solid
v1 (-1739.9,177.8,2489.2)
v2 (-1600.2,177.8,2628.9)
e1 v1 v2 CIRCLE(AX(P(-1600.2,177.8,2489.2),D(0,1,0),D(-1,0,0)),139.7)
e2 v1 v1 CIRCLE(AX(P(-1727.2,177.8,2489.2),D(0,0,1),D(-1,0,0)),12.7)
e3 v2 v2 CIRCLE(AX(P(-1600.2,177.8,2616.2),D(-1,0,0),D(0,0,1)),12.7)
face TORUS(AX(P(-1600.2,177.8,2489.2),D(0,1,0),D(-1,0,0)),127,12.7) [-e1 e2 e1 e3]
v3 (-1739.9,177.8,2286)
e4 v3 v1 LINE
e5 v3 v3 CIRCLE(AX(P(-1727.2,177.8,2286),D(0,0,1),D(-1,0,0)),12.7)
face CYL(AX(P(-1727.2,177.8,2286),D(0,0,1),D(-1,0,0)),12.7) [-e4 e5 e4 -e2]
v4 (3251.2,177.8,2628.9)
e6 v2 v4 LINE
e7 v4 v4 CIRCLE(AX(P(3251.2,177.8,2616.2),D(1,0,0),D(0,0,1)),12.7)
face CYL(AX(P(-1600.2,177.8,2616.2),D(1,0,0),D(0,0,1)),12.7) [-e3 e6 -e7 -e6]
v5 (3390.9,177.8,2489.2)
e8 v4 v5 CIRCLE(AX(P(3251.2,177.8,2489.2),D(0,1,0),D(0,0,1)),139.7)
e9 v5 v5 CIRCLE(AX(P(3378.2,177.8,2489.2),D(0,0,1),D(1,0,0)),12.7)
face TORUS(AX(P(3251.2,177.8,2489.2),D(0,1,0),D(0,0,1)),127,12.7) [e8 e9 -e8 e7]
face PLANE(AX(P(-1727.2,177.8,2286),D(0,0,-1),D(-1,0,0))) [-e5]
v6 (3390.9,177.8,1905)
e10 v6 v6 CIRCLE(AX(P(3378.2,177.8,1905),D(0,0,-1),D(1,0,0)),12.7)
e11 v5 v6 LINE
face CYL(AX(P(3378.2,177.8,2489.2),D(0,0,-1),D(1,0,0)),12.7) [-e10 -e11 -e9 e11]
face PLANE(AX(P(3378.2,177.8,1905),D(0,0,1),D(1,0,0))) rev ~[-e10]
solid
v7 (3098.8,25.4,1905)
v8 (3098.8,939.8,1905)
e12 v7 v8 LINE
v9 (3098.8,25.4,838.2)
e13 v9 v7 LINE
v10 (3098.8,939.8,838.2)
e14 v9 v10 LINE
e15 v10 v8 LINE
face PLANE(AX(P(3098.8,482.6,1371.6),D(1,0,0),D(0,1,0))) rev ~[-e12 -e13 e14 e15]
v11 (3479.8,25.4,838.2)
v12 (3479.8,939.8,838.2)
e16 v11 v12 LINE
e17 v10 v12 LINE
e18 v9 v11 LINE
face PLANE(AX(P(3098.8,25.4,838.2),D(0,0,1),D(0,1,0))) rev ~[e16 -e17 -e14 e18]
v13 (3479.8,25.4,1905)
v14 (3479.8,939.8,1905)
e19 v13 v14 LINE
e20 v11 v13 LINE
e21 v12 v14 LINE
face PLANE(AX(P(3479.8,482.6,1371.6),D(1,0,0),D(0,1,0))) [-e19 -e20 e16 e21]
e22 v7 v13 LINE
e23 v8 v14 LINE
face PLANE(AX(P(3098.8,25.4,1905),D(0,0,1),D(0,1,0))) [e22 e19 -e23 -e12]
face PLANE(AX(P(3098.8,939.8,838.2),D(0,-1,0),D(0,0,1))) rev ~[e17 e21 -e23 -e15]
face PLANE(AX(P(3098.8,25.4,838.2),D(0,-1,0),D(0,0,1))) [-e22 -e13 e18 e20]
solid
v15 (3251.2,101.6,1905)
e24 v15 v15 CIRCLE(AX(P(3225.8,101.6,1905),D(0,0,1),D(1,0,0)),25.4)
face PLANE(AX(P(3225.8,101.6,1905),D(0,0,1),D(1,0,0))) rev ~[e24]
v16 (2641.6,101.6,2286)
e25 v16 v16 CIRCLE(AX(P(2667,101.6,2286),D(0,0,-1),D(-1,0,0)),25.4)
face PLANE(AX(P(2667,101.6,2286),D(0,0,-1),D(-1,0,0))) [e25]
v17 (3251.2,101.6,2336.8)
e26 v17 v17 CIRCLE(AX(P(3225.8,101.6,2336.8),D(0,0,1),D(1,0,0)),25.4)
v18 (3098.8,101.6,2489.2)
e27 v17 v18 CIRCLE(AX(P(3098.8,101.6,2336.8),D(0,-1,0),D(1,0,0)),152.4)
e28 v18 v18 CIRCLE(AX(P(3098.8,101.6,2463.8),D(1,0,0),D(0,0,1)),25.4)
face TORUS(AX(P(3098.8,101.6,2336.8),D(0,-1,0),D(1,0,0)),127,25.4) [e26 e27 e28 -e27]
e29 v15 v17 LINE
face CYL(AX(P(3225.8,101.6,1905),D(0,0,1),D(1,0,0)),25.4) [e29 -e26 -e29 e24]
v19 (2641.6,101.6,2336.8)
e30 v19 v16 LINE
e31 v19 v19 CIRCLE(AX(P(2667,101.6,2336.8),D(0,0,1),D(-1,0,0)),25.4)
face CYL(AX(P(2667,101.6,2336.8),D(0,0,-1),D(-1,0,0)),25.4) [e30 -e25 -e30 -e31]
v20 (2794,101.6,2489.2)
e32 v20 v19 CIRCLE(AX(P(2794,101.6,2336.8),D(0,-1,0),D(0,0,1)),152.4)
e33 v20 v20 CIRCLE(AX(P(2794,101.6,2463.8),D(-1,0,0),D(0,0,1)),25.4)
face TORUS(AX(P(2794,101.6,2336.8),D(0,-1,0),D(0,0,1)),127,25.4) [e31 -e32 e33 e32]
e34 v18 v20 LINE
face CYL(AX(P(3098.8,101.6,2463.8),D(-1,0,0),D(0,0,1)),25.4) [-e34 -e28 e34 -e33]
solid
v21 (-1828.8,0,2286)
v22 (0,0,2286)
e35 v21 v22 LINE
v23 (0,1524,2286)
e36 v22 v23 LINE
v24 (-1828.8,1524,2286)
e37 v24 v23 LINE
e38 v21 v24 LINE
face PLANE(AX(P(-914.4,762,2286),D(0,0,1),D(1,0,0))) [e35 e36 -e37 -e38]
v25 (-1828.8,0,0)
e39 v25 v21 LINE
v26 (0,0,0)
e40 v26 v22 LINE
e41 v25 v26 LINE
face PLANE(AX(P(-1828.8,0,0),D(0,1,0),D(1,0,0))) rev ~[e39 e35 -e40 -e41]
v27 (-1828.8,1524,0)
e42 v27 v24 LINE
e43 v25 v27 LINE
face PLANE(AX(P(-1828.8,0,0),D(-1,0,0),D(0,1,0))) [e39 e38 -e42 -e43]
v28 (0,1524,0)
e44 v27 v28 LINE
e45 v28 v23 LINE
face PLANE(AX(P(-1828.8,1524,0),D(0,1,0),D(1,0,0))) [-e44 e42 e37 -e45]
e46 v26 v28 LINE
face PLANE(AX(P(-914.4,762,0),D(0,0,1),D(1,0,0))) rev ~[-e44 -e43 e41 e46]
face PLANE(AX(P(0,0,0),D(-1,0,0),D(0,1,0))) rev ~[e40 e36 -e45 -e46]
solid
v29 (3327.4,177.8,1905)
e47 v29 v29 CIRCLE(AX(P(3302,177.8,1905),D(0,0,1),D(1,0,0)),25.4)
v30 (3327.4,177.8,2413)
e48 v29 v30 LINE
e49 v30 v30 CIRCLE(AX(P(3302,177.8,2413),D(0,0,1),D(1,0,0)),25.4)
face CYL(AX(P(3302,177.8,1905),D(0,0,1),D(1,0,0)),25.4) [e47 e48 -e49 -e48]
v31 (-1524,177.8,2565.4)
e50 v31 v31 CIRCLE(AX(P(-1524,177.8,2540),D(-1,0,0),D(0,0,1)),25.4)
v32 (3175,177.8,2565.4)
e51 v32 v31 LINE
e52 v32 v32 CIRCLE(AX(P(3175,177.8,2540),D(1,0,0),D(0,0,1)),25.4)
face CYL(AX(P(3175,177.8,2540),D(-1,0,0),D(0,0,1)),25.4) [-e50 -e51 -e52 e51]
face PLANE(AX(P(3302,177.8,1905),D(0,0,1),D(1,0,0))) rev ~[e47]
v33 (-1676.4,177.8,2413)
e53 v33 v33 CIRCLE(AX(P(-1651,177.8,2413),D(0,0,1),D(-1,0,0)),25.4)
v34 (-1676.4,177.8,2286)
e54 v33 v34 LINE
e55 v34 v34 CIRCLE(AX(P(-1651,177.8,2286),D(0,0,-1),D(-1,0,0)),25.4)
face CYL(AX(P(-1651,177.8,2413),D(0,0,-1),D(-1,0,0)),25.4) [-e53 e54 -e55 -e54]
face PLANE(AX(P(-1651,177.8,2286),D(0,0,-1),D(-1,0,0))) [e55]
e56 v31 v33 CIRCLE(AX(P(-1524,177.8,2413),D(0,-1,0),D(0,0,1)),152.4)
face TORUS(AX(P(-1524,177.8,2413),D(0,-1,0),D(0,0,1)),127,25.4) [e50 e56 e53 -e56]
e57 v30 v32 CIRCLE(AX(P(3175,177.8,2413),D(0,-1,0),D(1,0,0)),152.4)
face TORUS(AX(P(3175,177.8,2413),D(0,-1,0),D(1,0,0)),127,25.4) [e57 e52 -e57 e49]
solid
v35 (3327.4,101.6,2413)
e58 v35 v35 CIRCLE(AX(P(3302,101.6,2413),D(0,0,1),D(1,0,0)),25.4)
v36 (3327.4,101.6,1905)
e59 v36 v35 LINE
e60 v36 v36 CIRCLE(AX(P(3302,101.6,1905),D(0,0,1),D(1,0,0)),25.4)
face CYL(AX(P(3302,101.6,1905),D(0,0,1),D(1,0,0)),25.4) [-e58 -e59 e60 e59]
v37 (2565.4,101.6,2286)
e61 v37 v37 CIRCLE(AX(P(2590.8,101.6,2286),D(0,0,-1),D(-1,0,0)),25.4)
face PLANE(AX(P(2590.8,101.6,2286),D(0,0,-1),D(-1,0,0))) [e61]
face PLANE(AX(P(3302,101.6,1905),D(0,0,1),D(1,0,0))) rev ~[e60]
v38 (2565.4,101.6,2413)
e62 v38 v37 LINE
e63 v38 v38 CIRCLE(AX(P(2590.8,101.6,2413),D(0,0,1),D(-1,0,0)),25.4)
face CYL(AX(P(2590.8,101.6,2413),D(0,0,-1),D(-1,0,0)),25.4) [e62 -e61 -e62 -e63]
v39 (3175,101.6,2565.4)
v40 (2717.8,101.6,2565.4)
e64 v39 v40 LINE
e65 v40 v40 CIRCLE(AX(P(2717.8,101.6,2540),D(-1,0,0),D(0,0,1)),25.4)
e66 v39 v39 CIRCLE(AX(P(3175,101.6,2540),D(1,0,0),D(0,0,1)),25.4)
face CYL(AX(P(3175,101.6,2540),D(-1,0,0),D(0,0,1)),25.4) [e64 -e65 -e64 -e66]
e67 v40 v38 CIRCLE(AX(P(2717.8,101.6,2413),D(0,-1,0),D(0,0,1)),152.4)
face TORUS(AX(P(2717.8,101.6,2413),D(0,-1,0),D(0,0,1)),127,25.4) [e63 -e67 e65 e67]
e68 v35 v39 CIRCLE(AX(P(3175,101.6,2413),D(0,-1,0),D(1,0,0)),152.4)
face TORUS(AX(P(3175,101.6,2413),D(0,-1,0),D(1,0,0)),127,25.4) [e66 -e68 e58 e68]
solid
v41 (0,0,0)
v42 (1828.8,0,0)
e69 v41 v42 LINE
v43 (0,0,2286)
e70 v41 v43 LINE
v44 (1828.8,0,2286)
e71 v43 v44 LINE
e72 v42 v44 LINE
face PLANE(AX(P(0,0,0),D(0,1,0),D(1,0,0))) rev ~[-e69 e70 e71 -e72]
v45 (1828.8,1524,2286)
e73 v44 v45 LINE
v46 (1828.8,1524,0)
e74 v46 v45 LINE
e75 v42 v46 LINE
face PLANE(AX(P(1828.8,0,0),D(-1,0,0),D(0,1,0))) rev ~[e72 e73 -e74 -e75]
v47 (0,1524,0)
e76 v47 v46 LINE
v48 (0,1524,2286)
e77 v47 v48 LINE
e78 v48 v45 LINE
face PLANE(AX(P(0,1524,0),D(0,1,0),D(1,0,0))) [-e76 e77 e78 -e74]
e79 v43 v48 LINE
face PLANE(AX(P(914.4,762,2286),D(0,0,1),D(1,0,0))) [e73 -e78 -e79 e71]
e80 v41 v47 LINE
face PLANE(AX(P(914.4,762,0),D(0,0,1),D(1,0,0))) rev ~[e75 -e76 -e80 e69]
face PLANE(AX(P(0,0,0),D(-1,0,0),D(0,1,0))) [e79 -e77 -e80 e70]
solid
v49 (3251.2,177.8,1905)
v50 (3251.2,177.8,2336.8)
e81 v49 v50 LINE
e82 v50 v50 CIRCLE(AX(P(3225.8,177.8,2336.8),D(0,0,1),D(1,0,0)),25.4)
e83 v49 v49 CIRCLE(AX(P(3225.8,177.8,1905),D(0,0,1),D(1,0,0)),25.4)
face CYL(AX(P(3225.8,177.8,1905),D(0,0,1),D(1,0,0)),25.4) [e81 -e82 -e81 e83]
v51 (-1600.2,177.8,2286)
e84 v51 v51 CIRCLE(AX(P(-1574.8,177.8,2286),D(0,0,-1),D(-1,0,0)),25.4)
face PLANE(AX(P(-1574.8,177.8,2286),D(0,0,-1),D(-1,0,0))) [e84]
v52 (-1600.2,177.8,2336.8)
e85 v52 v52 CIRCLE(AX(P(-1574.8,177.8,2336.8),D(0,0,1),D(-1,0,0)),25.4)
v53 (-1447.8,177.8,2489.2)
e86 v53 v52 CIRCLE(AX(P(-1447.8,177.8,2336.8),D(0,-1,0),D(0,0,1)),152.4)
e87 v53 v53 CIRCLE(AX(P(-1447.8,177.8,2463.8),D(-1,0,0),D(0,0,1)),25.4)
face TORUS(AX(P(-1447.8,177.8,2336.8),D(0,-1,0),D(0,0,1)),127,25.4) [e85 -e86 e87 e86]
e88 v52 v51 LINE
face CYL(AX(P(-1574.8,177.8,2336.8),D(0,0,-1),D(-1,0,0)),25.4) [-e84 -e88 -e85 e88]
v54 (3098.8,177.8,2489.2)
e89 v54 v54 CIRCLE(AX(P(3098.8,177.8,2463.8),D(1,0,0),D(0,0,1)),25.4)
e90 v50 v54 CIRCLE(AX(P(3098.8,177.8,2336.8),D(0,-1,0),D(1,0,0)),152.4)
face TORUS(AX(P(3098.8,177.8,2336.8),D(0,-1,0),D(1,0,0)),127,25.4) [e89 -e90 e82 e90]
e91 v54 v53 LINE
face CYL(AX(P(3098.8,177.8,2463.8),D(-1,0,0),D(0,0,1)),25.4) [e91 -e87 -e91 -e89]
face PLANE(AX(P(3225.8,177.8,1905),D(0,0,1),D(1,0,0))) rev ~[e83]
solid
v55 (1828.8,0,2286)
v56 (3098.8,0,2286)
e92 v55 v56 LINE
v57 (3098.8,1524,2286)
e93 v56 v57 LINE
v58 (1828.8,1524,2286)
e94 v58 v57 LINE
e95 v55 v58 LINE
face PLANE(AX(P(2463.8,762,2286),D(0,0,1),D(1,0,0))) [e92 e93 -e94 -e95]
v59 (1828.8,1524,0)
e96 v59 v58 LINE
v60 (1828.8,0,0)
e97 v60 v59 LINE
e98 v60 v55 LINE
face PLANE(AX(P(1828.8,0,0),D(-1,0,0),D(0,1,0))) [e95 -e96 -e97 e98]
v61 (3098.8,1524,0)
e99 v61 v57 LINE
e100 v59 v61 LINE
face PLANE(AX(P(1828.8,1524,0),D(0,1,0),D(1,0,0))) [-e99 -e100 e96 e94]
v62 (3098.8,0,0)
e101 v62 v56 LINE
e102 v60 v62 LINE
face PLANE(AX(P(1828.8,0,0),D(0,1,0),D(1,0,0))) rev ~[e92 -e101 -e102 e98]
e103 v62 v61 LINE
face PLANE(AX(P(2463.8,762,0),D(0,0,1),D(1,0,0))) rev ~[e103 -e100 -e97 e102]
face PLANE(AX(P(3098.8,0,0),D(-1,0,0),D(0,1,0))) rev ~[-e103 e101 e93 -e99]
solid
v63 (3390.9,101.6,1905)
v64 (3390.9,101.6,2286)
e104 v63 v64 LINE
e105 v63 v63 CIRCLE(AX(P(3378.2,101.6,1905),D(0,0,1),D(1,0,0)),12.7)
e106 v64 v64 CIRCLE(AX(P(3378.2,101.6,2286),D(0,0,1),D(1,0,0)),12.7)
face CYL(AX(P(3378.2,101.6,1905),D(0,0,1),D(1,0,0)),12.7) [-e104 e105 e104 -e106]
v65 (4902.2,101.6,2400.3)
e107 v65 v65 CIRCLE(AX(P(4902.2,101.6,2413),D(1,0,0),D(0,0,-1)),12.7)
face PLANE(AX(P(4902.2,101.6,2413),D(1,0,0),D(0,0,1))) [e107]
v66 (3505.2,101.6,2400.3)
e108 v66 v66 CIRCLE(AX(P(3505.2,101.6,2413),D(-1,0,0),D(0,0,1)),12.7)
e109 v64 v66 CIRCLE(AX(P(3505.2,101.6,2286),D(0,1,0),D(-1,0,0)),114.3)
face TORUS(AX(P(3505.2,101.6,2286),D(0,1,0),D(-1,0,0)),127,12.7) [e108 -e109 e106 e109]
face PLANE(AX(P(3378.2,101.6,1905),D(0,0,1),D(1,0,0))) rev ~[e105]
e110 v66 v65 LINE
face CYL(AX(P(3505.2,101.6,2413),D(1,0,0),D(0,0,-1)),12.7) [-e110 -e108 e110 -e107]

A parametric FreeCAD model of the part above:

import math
import FreeCAD as App
import Part
import Sketcher

V = App.Vector
Q = App.Units.Quantity

doc = App.newDocument("Part")
params = doc.addObject("Spreadsheet::Sheet", "Params")
for row, (alias, value) in enumerate([
    ("sketch1_width", "72 in"),
    ("sketch1_height", "60 in"),
    ("pad1_length", "90 in"),
    ("sketch2_width", "72 in"),
    ("sketch2_height", "60 in"),
    ("pad2_length", "90 in"),
    ("sketch3_width", "50 in"),
    ("sketch3_height", "60 in"),
    ("pad3_length", "90 in"),
    ("sketch4_width", "36 in"),
    ("sketch4_height", "42 in"),
    ("pad4_length", "15 in"),
    ("sketch5_diameter", "2 in"),
    ("sketch6_radius", "5 in"),
    ("sketch6_width", "18 in"),
    ("sketch6_height", "20 in"),
    ("sketch6_height2", "5 in"),
    ("sketch7_diameter", "2 in"),
    ("sketch8_radius", "5 in"),
    ("sketch8_width", "12 in"),
    ("sketch8_height", "17 in"),
    ("sketch8_height2", "2 in"),
    ("sketch9_diameter", "1 in"),
    ("sketch10_radius", "5 in"),
    ("sketch10_width", "55 in"),
    ("sketch10_height", "15 in"),
    ("sketch11_diameter", "2 in"),
    ("sketch12_radius", "5 in"),
    ("sketch12_width", "185 in"),
    ("sketch12_height", "20 in"),
    ("sketch12_height2", "5 in"),
    ("sketch13_diameter", "1 in"),
    ("sketch14_radius", "5 in"),
    ("sketch14_width", "191 in"),
    ("sketch14_height", "8 in"),
    ("sketch14_height2", "23 in"),
    ("sketch15_diameter", "2 in"),
    ("sketch16_radius", "5 in"),
    ("sketch16_width", "179 in"),
    ("sketch16_height", "17 in"),
    ("sketch16_height2", "2 in"),
], start=1):
    params.set(f"A{row}", alias)
    params.set(f"B{row}", "=" + value)
    params.setAlias(f"B{row}", alias)

body = doc.addObject("PartDesign::Body", "Body")

# Sketch on XY plane
sketch1 = body.newObject("Sketcher::SketchObject", "Sketch")
sketch1.AttachmentSupport = (doc.getObject("XY_Plane"), [""])
sketch1.MapMode = "FlatFace"
sketch1.addGeometry(Part.LineSegment(V(0, 1524, 0), V(0, 0, 0)), False)
sketch1.addGeometry(Part.LineSegment(V(0, 0, 0), V(1829, 0, 0)), False)
sketch1.addGeometry(Part.LineSegment(V(1829, 0, 0), V(1829, 1524, 0)), False)
sketch1.addGeometry(Part.LineSegment(V(1829, 1524, 0), V(0, 1524, 0)), False)
sketch1.addConstraint(Sketcher.Constraint("Coincident", 0, 2, 1, 1))
sketch1.addConstraint(Sketcher.Constraint("Coincident", 1, 2, 2, 1))
sketch1.addConstraint(Sketcher.Constraint("Coincident", 2, 2, 3, 1))
sketch1.addConstraint(Sketcher.Constraint("Coincident", 3, 2, 0, 1))
sketch1.addConstraint(Sketcher.Constraint("Vertical", 0))
sketch1.addConstraint(Sketcher.Constraint("Horizontal", 1))
sketch1.addConstraint(Sketcher.Constraint("Vertical", 2))
sketch1.addConstraint(Sketcher.Constraint("Horizontal", 3))
sketch1.addConstraint(Sketcher.Constraint("Coincident", 0, 2, -1, 1))
sketch1.addConstraint(Sketcher.Constraint("DistanceX", 1, 1, 1, 2, Q("72 in")))
sketch1.addConstraint(Sketcher.Constraint("DistanceY", 0, 2, 0, 1, Q("60 in")))
sketch1.setExpression("Constraints[9]", "Params.sketch1_width")
sketch1.setExpression("Constraints[10]", "Params.sketch1_height")
pad1 = body.newObject("PartDesign::Pad", "Pad")
pad1.Profile = sketch1
pad1.setExpression("Length", "Params.pad1_length")
body2 = doc.addObject("PartDesign::Body", "Body001")

# Sketch on XY plane
sketch2 = body2.newObject("Sketcher::SketchObject", "Sketch001")
sketch2.AttachmentSupport = (doc.getObject("XY_Plane001"), [""])
sketch2.MapMode = "FlatFace"
sketch2.addGeometry(Part.LineSegment(V(-1829, 1524, 0), V(-1829, 0, 0)), False)
sketch2.addGeometry(Part.LineSegment(V(-1829, 0, 0), V(0, 0, 0)), False)
sketch2.addGeometry(Part.LineSegment(V(0, 0, 0), V(0, 1524, 0)), False)
sketch2.addGeometry(Part.LineSegment(V(0, 1524, 0), V(-1829, 1524, 0)), False)
sketch2.addConstraint(Sketcher.Constraint("Coincident", 0, 2, 1, 1))
sketch2.addConstraint(Sketcher.Constraint("Coincident", 1, 2, 2, 1))
sketch2.addConstraint(Sketcher.Constraint("Coincident", 2, 2, 3, 1))
sketch2.addConstraint(Sketcher.Constraint("Coincident", 3, 2, 0, 1))
sketch2.addConstraint(Sketcher.Constraint("Vertical", 0))
sketch2.addConstraint(Sketcher.Constraint("Horizontal", 1))
sketch2.addConstraint(Sketcher.Constraint("Vertical", 2))
sketch2.addConstraint(Sketcher.Constraint("Horizontal", 3))
sketch2.addConstraint(Sketcher.Constraint("Coincident", 1, 2, -1, 1))
sketch2.addConstraint(Sketcher.Constraint("DistanceX", 1, 1, 1, 2, Q("72 in")))
sketch2.addConstraint(Sketcher.Constraint("DistanceY", 0, 2, 0, 1, Q("60 in")))
sketch2.setExpression("Constraints[9]", "Params.sketch2_width")
sketch2.setExpression("Constraints[10]", "Params.sketch2_height")
pad2 = body2.newObject("PartDesign::Pad", "Pad001")
pad2.Profile = sketch2
pad2.setExpression("Length", "Params.pad2_length")
body3 = doc.addObject("PartDesign::Body", "Body002")

# Sketch on XY plane
sketch3 = body3.newObject("Sketcher::SketchObject", "Sketch002")
sketch3.AttachmentSupport = (doc.getObject("XY_Plane002"), [""])
sketch3.MapMode = "FlatFace"
sketch3.addGeometry(Part.LineSegment(V(1829, 1524, 0), V(1829, 0, 0)), False)
sketch3.addGeometry(Part.LineSegment(V(1829, 0, 0), V(3099, 0, 0)), False)
sketch3.addGeometry(Part.LineSegment(V(3099, 0, 0), V(3099, 1524, 0)), False)
sketch3.addGeometry(Part.LineSegment(V(3099, 1524, 0), V(1829, 1524, 0)), False)
sketch3.addConstraint(Sketcher.Constraint("Coincident", 0, 2, 1, 1))
sketch3.addConstraint(Sketcher.Constraint("Coincident", 1, 2, 2, 1))
sketch3.addConstraint(Sketcher.Constraint("Coincident", 2, 2, 3, 1))
sketch3.addConstraint(Sketcher.Constraint("Coincident", 3, 2, 0, 1))
sketch3.addConstraint(Sketcher.Constraint("Vertical", 0))
sketch3.addConstraint(Sketcher.Constraint("Horizontal", 1))
sketch3.addConstraint(Sketcher.Constraint("Vertical", 2))
sketch3.addConstraint(Sketcher.Constraint("Horizontal", 3))
sketch3.addConstraint(Sketcher.Constraint("PointOnObject", 0, 2, -1))
sketch3.addConstraint(Sketcher.Constraint("DistanceX", 1, 1, 1, 2, Q("50 in")))
sketch3.addConstraint(Sketcher.Constraint("DistanceY", 0, 2, 0, 1, Q("60 in")))
sketch3.addConstraint(Sketcher.Constraint("DistanceX", -1, 1, 0, 2, Q("72 in")))
sketch3.setExpression("Constraints[9]", "Params.sketch3_width")
sketch3.setExpression("Constraints[10]", "Params.sketch3_height")
pad3 = body3.newObject("PartDesign::Pad", "Pad002")
pad3.Profile = sketch3
pad3.setExpression("Length", "Params.pad3_length")
body4 = doc.addObject("PartDesign::Body", "Body003")

# Sketch on YZ plane
sketch4 = body4.newObject("Sketcher::SketchObject", "Sketch003")
sketch4.AttachmentSupport = (doc.getObject("YZ_Plane003"), [""])
sketch4.MapMode = "FlatFace"
sketch4.AttachmentOffset = App.Placement(V(0, 0, 122 * 25.4), App.Rotation())
sketch4.addGeometry(Part.LineSegment(V(25, 1905, 0), V(25, 838, 0)), False)
sketch4.addGeometry(Part.LineSegment(V(25, 838, 0), V(940, 838, 0)), False)
sketch4.addGeometry(Part.LineSegment(V(940, 838, 0), V(940, 1905, 0)), False)
sketch4.addGeometry(Part.LineSegment(V(940, 1905, 0), V(25, 1905, 0)), False)
sketch4.addConstraint(Sketcher.Constraint("Coincident", 0, 2, 1, 1))
sketch4.addConstraint(Sketcher.Constraint("Coincident", 1, 2, 2, 1))
sketch4.addConstraint(Sketcher.Constraint("Coincident", 2, 2, 3, 1))
sketch4.addConstraint(Sketcher.Constraint("Coincident", 3, 2, 0, 1))
sketch4.addConstraint(Sketcher.Constraint("Vertical", 0))
sketch4.addConstraint(Sketcher.Constraint("Horizontal", 1))
sketch4.addConstraint(Sketcher.Constraint("Vertical", 2))
sketch4.addConstraint(Sketcher.Constraint("Horizontal", 3))
sketch4.addConstraint(Sketcher.Constraint("DistanceX", 1, 1, 1, 2, Q("36 in")))
sketch4.addConstraint(Sketcher.Constraint("DistanceY", 0, 2, 0, 1, Q("42 in")))
sketch4.addConstraint(Sketcher.Constraint("DistanceX", -1, 1, 0, 2, Q("1 in")))
sketch4.addConstraint(Sketcher.Constraint("DistanceY", -1, 1, 0, 2, Q("33 in")))
sketch4.setExpression("Constraints[8]", "Params.sketch4_width")
sketch4.setExpression("Constraints[9]", "Params.sketch4_height")
pad4 = body4.newObject("PartDesign::Pad", "Pad003")
pad4.Profile = sketch4
pad4.setExpression("Length", "Params.pad4_length")
body5 = doc.addObject("PartDesign::Body", "Body004")

# Sketch on XY plane
sketch5 = body5.newObject("Sketcher::SketchObject", "Sketch004")
sketch5.AttachmentSupport = (doc.getObject("XY_Plane004"), [""])
sketch5.MapMode = "FlatFace"
sketch5.AttachmentOffset = App.Placement(V(0, 0, 75 * 25.4), App.Rotation())
sketch5.addGeometry(Part.Circle(V(3302, 102, 0), V(0, 0, 1), 25), False)
sketch5.addConstraint(Sketcher.Constraint("Diameter", 0, Q("2 in")))
sketch5.addConstraint(Sketcher.Constraint("DistanceX", -1, 1, 0, 3, Q("130 in")))
sketch5.addConstraint(Sketcher.Constraint("DistanceY", -1, 1, 0, 3, Q("4 in")))
sketch5.setExpression("Constraints[0]", "Params.sketch5_diameter")

# Sketch on XZ plane
sketch6 = body5.newObject("Sketcher::SketchObject", "Sketch005")
sketch6.AttachmentSupport = (doc.getObject("XZ_Plane004"), [""])
sketch6.MapMode = "FlatFace"
sketch6.AttachmentOffset = App.Placement(V(0, 0, -4 * 25.4), App.Rotation())
sketch6.addGeometry(Part.LineSegment(V(3302, 1905, 0), V(3302, 2413, 0)), False)
sketch6.addGeometry(Part.ArcOfCircle(Part.Circle(V(3175, 2413, 0), V(0, 0, 1), 127), math.radians(0), math.radians(90)), False)
sketch6.addGeometry(Part.LineSegment(V(3175, 2540, 0), V(2718, 2540, 0)), False)
sketch6.addGeometry(Part.ArcOfCircle(Part.Circle(V(2718, 2413, 0), V(0, 0, 1), 127), math.radians(90), math.radians(180)), False)
sketch6.addGeometry(Part.LineSegment(V(2591, 2413, 0), V(2591, 2286, 0)), False)
sketch6.addConstraint(Sketcher.Constraint("Tangent", 0, 2, 1, 1))
sketch6.addConstraint(Sketcher.Constraint("Tangent", 1, 2, 2, 1))
sketch6.addConstraint(Sketcher.Constraint("Tangent", 2, 2, 3, 1))
sketch6.addConstraint(Sketcher.Constraint("Tangent", 3, 2, 4, 1))
sketch6.addConstraint(Sketcher.Constraint("Vertical", 0))
sketch6.addConstraint(Sketcher.Constraint("Horizontal", 2))
sketch6.addConstraint(Sketcher.Constraint("Vertical", 4))
sketch6.addConstraint(Sketcher.Constraint("Equal", 1, 3))
sketch6.addConstraint(Sketcher.Constraint("Radius", 1, Q("5 in")))
sketch6.addConstraint(Sketcher.Constraint("DistanceX", 2, 2, 2, 1, Q("18 in")))
sketch6.addConstraint(Sketcher.Constraint("DistanceY", 0, 1, 0, 2, Q("20 in")))
sketch6.addConstraint(Sketcher.Constraint("DistanceY", 4, 2, 4, 1, Q("5 in")))
sketch6.addConstraint(Sketcher.Constraint("DistanceX", -1, 1, 1, 3, Q("125 in")))
sketch6.addConstraint(Sketcher.Constraint("DistanceY", -1, 1, 1, 3, Q("95 in")))
sketch6.setExpression("Constraints[8]", "Params.sketch6_radius")
sketch6.setExpression("Constraints[9]", "Params.sketch6_width")
sketch6.setExpression("Constraints[10]", "Params.sketch6_height")
sketch6.setExpression("Constraints[11]", "Params.sketch6_height2")
doc.recompute()

additivepipe = body5.newObject("PartDesign::AdditivePipe", "AdditivePipe")
additivepipe.Profile = sketch5
additivepipe.Spine = (sketch6, ["Edge1", "Edge2", "Edge3", "Edge4", "Edge5"])
body6 = doc.addObject("PartDesign::Body", "Body005")

# Sketch on XY plane
sketch7 = body6.newObject("Sketcher::SketchObject", "Sketch006")
sketch7.AttachmentSupport = (doc.getObject("XY_Plane005"), [""])
sketch7.MapMode = "FlatFace"
sketch7.AttachmentOffset = App.Placement(V(0, 0, 75 * 25.4), App.Rotation())
sketch7.addGeometry(Part.Circle(V(3226, 102, 0), V(0, 0, 1), 25), False)
sketch7.addConstraint(Sketcher.Constraint("Diameter", 0, Q("2 in")))
sketch7.addConstraint(Sketcher.Constraint("DistanceX", -1, 1, 0, 3, Q("127 in")))
sketch7.addConstraint(Sketcher.Constraint("DistanceY", -1, 1, 0, 3, Q("4 in")))
sketch7.setExpression("Constraints[0]", "Params.sketch7_diameter")

# Sketch on XZ plane
sketch8 = body6.newObject("Sketcher::SketchObject", "Sketch007")
sketch8.AttachmentSupport = (doc.getObject("XZ_Plane005"), [""])
sketch8.MapMode = "FlatFace"
sketch8.AttachmentOffset = App.Placement(V(0, 0, -4 * 25.4), App.Rotation())
sketch8.addGeometry(Part.LineSegment(V(3226, 1905, 0), V(3226, 2337, 0)), False)
sketch8.addGeometry(Part.ArcOfCircle(Part.Circle(V(3099, 2337, 0), V(0, 0, 1), 127), math.radians(0), math.radians(90)), False)
sketch8.addGeometry(Part.LineSegment(V(3099, 2464, 0), V(2794, 2464, 0)), False)
sketch8.addGeometry(Part.ArcOfCircle(Part.Circle(V(2794, 2337, 0), V(0, 0, 1), 127), math.radians(90), math.radians(180)), False)
sketch8.addGeometry(Part.LineSegment(V(2667, 2337, 0), V(2667, 2286, 0)), False)
sketch8.addConstraint(Sketcher.Constraint("Tangent", 0, 2, 1, 1))
sketch8.addConstraint(Sketcher.Constraint("Tangent", 1, 2, 2, 1))
sketch8.addConstraint(Sketcher.Constraint("Tangent", 2, 2, 3, 1))
sketch8.addConstraint(Sketcher.Constraint("Tangent", 3, 2, 4, 1))
sketch8.addConstraint(Sketcher.Constraint("Vertical", 0))
sketch8.addConstraint(Sketcher.Constraint("Horizontal", 2))
sketch8.addConstraint(Sketcher.Constraint("Vertical", 4))
sketch8.addConstraint(Sketcher.Constraint("Equal", 1, 3))
sketch8.addConstraint(Sketcher.Constraint("Radius", 1, Q("5 in")))
sketch8.addConstraint(Sketcher.Constraint("DistanceX", 2, 2, 2, 1, Q("12 in")))
sketch8.addConstraint(Sketcher.Constraint("DistanceY", 0, 1, 0, 2, Q("17 in")))
sketch8.addConstraint(Sketcher.Constraint("DistanceY", 4, 2, 4, 1, Q("2 in")))
sketch8.addConstraint(Sketcher.Constraint("DistanceX", -1, 1, 1, 3, Q("122 in")))
sketch8.addConstraint(Sketcher.Constraint("DistanceY", -1, 1, 1, 3, Q("92 in")))
sketch8.setExpression("Constraints[8]", "Params.sketch8_radius")
sketch8.setExpression("Constraints[9]", "Params.sketch8_width")
sketch8.setExpression("Constraints[10]", "Params.sketch8_height")
sketch8.setExpression("Constraints[11]", "Params.sketch8_height2")
doc.recompute()

additivepipe2 = body6.newObject("PartDesign::AdditivePipe", "AdditivePipe001")
additivepipe2.Profile = sketch7
additivepipe2.Spine = (sketch8, ["Edge1", "Edge2", "Edge3", "Edge4", "Edge5"])
body7 = doc.addObject("PartDesign::Body", "Body006")

# Sketch on XY plane
sketch9 = body7.newObject("Sketcher::SketchObject", "Sketch008")
sketch9.AttachmentSupport = (doc.getObject("XY_Plane006"), [""])
sketch9.MapMode = "FlatFace"
sketch9.AttachmentOffset = App.Placement(V(0, 0, 75 * 25.4), App.Rotation())
sketch9.addGeometry(Part.Circle(V(3378, 102, 0), V(0, 0, 1), 13), False)
sketch9.addConstraint(Sketcher.Constraint("Diameter", 0, Q("1 in")))
sketch9.addConstraint(Sketcher.Constraint("DistanceX", -1, 1, 0, 3, Q("133 in")))
sketch9.addConstraint(Sketcher.Constraint("DistanceY", -1, 1, 0, 3, Q("4 in")))
sketch9.setExpression("Constraints[0]", "Params.sketch9_diameter")

# Sketch on XZ plane
sketch10 = body7.newObject("Sketcher::SketchObject", "Sketch009")
sketch10.AttachmentSupport = (doc.getObject("XZ_Plane006"), [""])
sketch10.MapMode = "FlatFace"
sketch10.AttachmentOffset = App.Placement(V(0, 0, -4 * 25.4), App.Rotation())
sketch10.addGeometry(Part.LineSegment(V(3378, 1905, 0), V(3378, 2286, 0)), False)
sketch10.addGeometry(Part.ArcOfCircle(Part.Circle(V(3505, 2286, 0), V(0, 0, 1), 127), math.radians(90), math.radians(180)), False)
sketch10.addGeometry(Part.LineSegment(V(3505, 2413, 0), V(4902, 2413, 0)), False)
sketch10.addConstraint(Sketcher.Constraint("Tangent", 0, 2, 1, 2))
sketch10.addConstraint(Sketcher.Constraint("Tangent", 1, 1, 2, 1))
sketch10.addConstraint(Sketcher.Constraint("Vertical", 0))
sketch10.addConstraint(Sketcher.Constraint("Horizontal", 2))
sketch10.addConstraint(Sketcher.Constraint("Radius", 1, Q("5 in")))
sketch10.addConstraint(Sketcher.Constraint("DistanceX", 2, 1, 2, 2, Q("55 in")))
sketch10.addConstraint(Sketcher.Constraint("DistanceY", 0, 1, 0, 2, Q("15 in")))
sketch10.addConstraint(Sketcher.Constraint("DistanceX", -1, 1, 1, 3, Q("138 in")))
sketch10.addConstraint(Sketcher.Constraint("DistanceY", -1, 1, 1, 3, Q("90 in")))
sketch10.setExpression("Constraints[4]", "Params.sketch10_radius")
sketch10.setExpression("Constraints[5]", "Params.sketch10_width")
sketch10.setExpression("Constraints[6]", "Params.sketch10_height")
doc.recompute()

additivepipe3 = body7.newObject("PartDesign::AdditivePipe", "AdditivePipe002")
additivepipe3.Profile = sketch9
additivepipe3.Spine = (sketch10, ["Edge1", "Edge2", "Edge3"])
body8 = doc.addObject("PartDesign::Body", "Body007")

# Sketch on XY plane
sketch11 = body8.newObject("Sketcher::SketchObject", "Sketch010")
sketch11.AttachmentSupport = (doc.getObject("XY_Plane007"), [""])
sketch11.MapMode = "FlatFace"
sketch11.AttachmentOffset = App.Placement(V(0, 0, 75 * 25.4), App.Rotation())
sketch11.addGeometry(Part.Circle(V(3302, 178, 0), V(0, 0, 1), 25), False)
sketch11.addConstraint(Sketcher.Constraint("Diameter", 0, Q("2 in")))
sketch11.addConstraint(Sketcher.Constraint("DistanceX", -1, 1, 0, 3, Q("130 in")))
sketch11.addConstraint(Sketcher.Constraint("DistanceY", -1, 1, 0, 3, Q("7 in")))
sketch11.setExpression("Constraints[0]", "Params.sketch11_diameter")

# Sketch on XZ plane
sketch12 = body8.newObject("Sketcher::SketchObject", "Sketch011")
sketch12.AttachmentSupport = (doc.getObject("XZ_Plane007"), [""])
sketch12.MapMode = "FlatFace"
sketch12.AttachmentOffset = App.Placement(V(0, 0, -7 * 25.4), App.Rotation())
sketch12.addGeometry(Part.LineSegment(V(3302, 1905, 0), V(3302, 2413, 0)), False)
sketch12.addGeometry(Part.ArcOfCircle(Part.Circle(V(3175, 2413, 0), V(0, 0, 1), 127), math.radians(0), math.radians(90)), False)
sketch12.addGeometry(Part.LineSegment(V(3175, 2540, 0), V(-1524, 2540, 0)), False)
sketch12.addGeometry(Part.ArcOfCircle(Part.Circle(V(-1524, 2413, 0), V(0, 0, 1), 127), math.radians(90), math.radians(180)), False)
sketch12.addGeometry(Part.LineSegment(V(-1651, 2413, 0), V(-1651, 2286, 0)), False)
sketch12.addConstraint(Sketcher.Constraint("Tangent", 0, 2, 1, 1))
sketch12.addConstraint(Sketcher.Constraint("Tangent", 1, 2, 2, 1))
sketch12.addConstraint(Sketcher.Constraint("Tangent", 2, 2, 3, 1))
sketch12.addConstraint(Sketcher.Constraint("Tangent", 3, 2, 4, 1))
sketch12.addConstraint(Sketcher.Constraint("Vertical", 0))
sketch12.addConstraint(Sketcher.Constraint("Horizontal", 2))
sketch12.addConstraint(Sketcher.Constraint("Vertical", 4))
sketch12.addConstraint(Sketcher.Constraint("Equal", 1, 3))
sketch12.addConstraint(Sketcher.Constraint("Radius", 1, Q("5 in")))
sketch12.addConstraint(Sketcher.Constraint("DistanceX", 2, 2, 2, 1, Q("185 in")))
sketch12.addConstraint(Sketcher.Constraint("DistanceY", 0, 1, 0, 2, Q("20 in")))
sketch12.addConstraint(Sketcher.Constraint("DistanceY", 4, 2, 4, 1, Q("5 in")))
sketch12.addConstraint(Sketcher.Constraint("DistanceX", -1, 1, 1, 3, Q("125 in")))
sketch12.addConstraint(Sketcher.Constraint("DistanceY", -1, 1, 1, 3, Q("95 in")))
sketch12.setExpression("Constraints[8]", "Params.sketch12_radius")
sketch12.setExpression("Constraints[9]", "Params.sketch12_width")
sketch12.setExpression("Constraints[10]", "Params.sketch12_height")
sketch12.setExpression("Constraints[11]", "Params.sketch12_height2")
doc.recompute()

additivepipe4 = body8.newObject("PartDesign::AdditivePipe", "AdditivePipe003")
additivepipe4.Profile = sketch11
additivepipe4.Spine = (sketch12, ["Edge1", "Edge2", "Edge3", "Edge4", "Edge5"])
body9 = doc.addObject("PartDesign::Body", "Body008")

# Sketch on XY plane
sketch13 = body9.newObject("Sketcher::SketchObject", "Sketch012")
sketch13.AttachmentSupport = (doc.getObject("XY_Plane008"), [""])
sketch13.MapMode = "FlatFace"
sketch13.AttachmentOffset = App.Placement(V(0, 0, 75 * 25.4), App.Rotation())
sketch13.addGeometry(Part.Circle(V(3378, 178, 0), V(0, 0, 1), 13), False)
sketch13.addConstraint(Sketcher.Constraint("Diameter", 0, Q("1 in")))
sketch13.addConstraint(Sketcher.Constraint("DistanceX", -1, 1, 0, 3, Q("133 in")))
sketch13.addConstraint(Sketcher.Constraint("DistanceY", -1, 1, 0, 3, Q("7 in")))
sketch13.setExpression("Constraints[0]", "Params.sketch13_diameter")

# Sketch on XZ plane
sketch14 = body9.newObject("Sketcher::SketchObject", "Sketch013")
sketch14.AttachmentSupport = (doc.getObject("XZ_Plane008"), [""])
sketch14.MapMode = "FlatFace"
sketch14.AttachmentOffset = App.Placement(V(0, 0, -7 * 25.4), App.Rotation())
sketch14.addGeometry(Part.LineSegment(V(-1727, 2286, 0), V(-1727, 2489, 0)), False)
sketch14.addGeometry(Part.ArcOfCircle(Part.Circle(V(-1600, 2489, 0), V(0, 0, 1), 127), math.radians(90), math.radians(180)), False)
sketch14.addGeometry(Part.LineSegment(V(-1600, 2616, 0), V(3251, 2616, 0)), False)
sketch14.addGeometry(Part.ArcOfCircle(Part.Circle(V(3251, 2489, 0), V(0, 0, 1), 127), math.radians(0), math.radians(90)), False)
sketch14.addGeometry(Part.LineSegment(V(3378, 2489, 0), V(3378, 1905, 0)), False)
sketch14.addConstraint(Sketcher.Constraint("Tangent", 0, 2, 1, 2))
sketch14.addConstraint(Sketcher.Constraint("Tangent", 1, 1, 2, 1))
sketch14.addConstraint(Sketcher.Constraint("Tangent", 2, 2, 3, 2))
sketch14.addConstraint(Sketcher.Constraint("Tangent", 3, 1, 4, 1))
sketch14.addConstraint(Sketcher.Constraint("Vertical", 0))
sketch14.addConstraint(Sketcher.Constraint("Horizontal", 2))
sketch14.addConstraint(Sketcher.Constraint("Vertical", 4))
sketch14.addConstraint(Sketcher.Constraint("Equal", 1, 3))
sketch14.addConstraint(Sketcher.Constraint("Radius", 1, Q("5 in")))
sketch14.addConstraint(Sketcher.Constraint("DistanceX", 2, 1, 2, 2, Q("191 in")))
sketch14.addConstraint(Sketcher.Constraint("DistanceY", 0, 1, 0, 2, Q("8 in")))
sketch14.addConstraint(Sketcher.Constraint("DistanceY", 4, 2, 4, 1, Q("23 in")))
sketch14.addConstraint(Sketcher.Constraint("DistanceX", 1, 3, -1, 1, Q("63 in")))
sketch14.addConstraint(Sketcher.Constraint("DistanceY", -1, 1, 1, 3, Q("98 in")))
sketch14.setExpression("Constraints[8]", "Params.sketch14_radius")
sketch14.setExpression("Constraints[9]", "Params.sketch14_width")
sketch14.setExpression("Constraints[10]", "Params.sketch14_height")
sketch14.setExpression("Constraints[11]", "Params.sketch14_height2")
doc.recompute()

additivepipe5 = body9.newObject("PartDesign::AdditivePipe", "AdditivePipe004")
additivepipe5.Profile = sketch13
additivepipe5.Spine = (sketch14, ["Edge1", "Edge2", "Edge3", "Edge4", "Edge5"])
body10 = doc.addObject("PartDesign::Body", "Body009")

# Sketch on XY plane
sketch15 = body10.newObject("Sketcher::SketchObject", "Sketch014")
sketch15.AttachmentSupport = (doc.getObject("XY_Plane009"), [""])
sketch15.MapMode = "FlatFace"
sketch15.AttachmentOffset = App.Placement(V(0, 0, 75 * 25.4), App.Rotation())
sketch15.addGeometry(Part.Circle(V(3226, 178, 0), V(0, 0, 1), 25), False)
sketch15.addConstraint(Sketcher.Constraint("Diameter", 0, Q("2 in")))
sketch15.addConstraint(Sketcher.Constraint("DistanceX", -1, 1, 0, 3, Q("127 in")))
sketch15.addConstraint(Sketcher.Constraint("DistanceY", -1, 1, 0, 3, Q("7 in")))
sketch15.setExpression("Constraints[0]", "Params.sketch15_diameter")

# Sketch on XZ plane
sketch16 = body10.newObject("Sketcher::SketchObject", "Sketch015")
sketch16.AttachmentSupport = (doc.getObject("XZ_Plane009"), [""])
sketch16.MapMode = "FlatFace"
sketch16.AttachmentOffset = App.Placement(V(0, 0, -7 * 25.4), App.Rotation())
sketch16.addGeometry(Part.LineSegment(V(3226, 1905, 0), V(3226, 2337, 0)), False)
sketch16.addGeometry(Part.ArcOfCircle(Part.Circle(V(3099, 2337, 0), V(0, 0, 1), 127), math.radians(0), math.radians(90)), False)
sketch16.addGeometry(Part.LineSegment(V(3099, 2464, 0), V(-1448, 2464, 0)), False)
sketch16.addGeometry(Part.ArcOfCircle(Part.Circle(V(-1448, 2337, 0), V(0, 0, 1), 127), math.radians(90), math.radians(180)), False)
sketch16.addGeometry(Part.LineSegment(V(-1575, 2337, 0), V(-1575, 2286, 0)), False)
sketch16.addConstraint(Sketcher.Constraint("Tangent", 0, 2, 1, 1))
sketch16.addConstraint(Sketcher.Constraint("Tangent", 1, 2, 2, 1))
sketch16.addConstraint(Sketcher.Constraint("Tangent", 2, 2, 3, 1))
sketch16.addConstraint(Sketcher.Constraint("Tangent", 3, 2, 4, 1))
sketch16.addConstraint(Sketcher.Constraint("Vertical", 0))
sketch16.addConstraint(Sketcher.Constraint("Horizontal", 2))
sketch16.addConstraint(Sketcher.Constraint("Vertical", 4))
sketch16.addConstraint(Sketcher.Constraint("Equal", 1, 3))
sketch16.addConstraint(Sketcher.Constraint("Radius", 1, Q("5 in")))
sketch16.addConstraint(Sketcher.Constraint("DistanceX", 2, 2, 2, 1, Q("179 in")))
sketch16.addConstraint(Sketcher.Constraint("DistanceY", 0, 1, 0, 2, Q("17 in")))
sketch16.addConstraint(Sketcher.Constraint("DistanceY", 4, 2, 4, 1, Q("2 in")))
sketch16.addConstraint(Sketcher.Constraint("DistanceX", -1, 1, 1, 3, Q("122 in")))
sketch16.addConstraint(Sketcher.Constraint("DistanceY", -1, 1, 1, 3, Q("92 in")))
sketch16.setExpression("Constraints[8]", "Params.sketch16_radius")
sketch16.setExpression("Constraints[9]", "Params.sketch16_width")
sketch16.setExpression("Constraints[10]", "Params.sketch16_height")
sketch16.setExpression("Constraints[11]", "Params.sketch16_height2")
doc.recompute()

additivepipe6 = body10.newObject("PartDesign::AdditivePipe", "AdditivePipe005")
additivepipe6.Profile = sketch15
additivepipe6.Spine = (sketch16, ["Edge1", "Edge2", "Edge3", "Edge4", "Edge5"])

doc.recompute()
